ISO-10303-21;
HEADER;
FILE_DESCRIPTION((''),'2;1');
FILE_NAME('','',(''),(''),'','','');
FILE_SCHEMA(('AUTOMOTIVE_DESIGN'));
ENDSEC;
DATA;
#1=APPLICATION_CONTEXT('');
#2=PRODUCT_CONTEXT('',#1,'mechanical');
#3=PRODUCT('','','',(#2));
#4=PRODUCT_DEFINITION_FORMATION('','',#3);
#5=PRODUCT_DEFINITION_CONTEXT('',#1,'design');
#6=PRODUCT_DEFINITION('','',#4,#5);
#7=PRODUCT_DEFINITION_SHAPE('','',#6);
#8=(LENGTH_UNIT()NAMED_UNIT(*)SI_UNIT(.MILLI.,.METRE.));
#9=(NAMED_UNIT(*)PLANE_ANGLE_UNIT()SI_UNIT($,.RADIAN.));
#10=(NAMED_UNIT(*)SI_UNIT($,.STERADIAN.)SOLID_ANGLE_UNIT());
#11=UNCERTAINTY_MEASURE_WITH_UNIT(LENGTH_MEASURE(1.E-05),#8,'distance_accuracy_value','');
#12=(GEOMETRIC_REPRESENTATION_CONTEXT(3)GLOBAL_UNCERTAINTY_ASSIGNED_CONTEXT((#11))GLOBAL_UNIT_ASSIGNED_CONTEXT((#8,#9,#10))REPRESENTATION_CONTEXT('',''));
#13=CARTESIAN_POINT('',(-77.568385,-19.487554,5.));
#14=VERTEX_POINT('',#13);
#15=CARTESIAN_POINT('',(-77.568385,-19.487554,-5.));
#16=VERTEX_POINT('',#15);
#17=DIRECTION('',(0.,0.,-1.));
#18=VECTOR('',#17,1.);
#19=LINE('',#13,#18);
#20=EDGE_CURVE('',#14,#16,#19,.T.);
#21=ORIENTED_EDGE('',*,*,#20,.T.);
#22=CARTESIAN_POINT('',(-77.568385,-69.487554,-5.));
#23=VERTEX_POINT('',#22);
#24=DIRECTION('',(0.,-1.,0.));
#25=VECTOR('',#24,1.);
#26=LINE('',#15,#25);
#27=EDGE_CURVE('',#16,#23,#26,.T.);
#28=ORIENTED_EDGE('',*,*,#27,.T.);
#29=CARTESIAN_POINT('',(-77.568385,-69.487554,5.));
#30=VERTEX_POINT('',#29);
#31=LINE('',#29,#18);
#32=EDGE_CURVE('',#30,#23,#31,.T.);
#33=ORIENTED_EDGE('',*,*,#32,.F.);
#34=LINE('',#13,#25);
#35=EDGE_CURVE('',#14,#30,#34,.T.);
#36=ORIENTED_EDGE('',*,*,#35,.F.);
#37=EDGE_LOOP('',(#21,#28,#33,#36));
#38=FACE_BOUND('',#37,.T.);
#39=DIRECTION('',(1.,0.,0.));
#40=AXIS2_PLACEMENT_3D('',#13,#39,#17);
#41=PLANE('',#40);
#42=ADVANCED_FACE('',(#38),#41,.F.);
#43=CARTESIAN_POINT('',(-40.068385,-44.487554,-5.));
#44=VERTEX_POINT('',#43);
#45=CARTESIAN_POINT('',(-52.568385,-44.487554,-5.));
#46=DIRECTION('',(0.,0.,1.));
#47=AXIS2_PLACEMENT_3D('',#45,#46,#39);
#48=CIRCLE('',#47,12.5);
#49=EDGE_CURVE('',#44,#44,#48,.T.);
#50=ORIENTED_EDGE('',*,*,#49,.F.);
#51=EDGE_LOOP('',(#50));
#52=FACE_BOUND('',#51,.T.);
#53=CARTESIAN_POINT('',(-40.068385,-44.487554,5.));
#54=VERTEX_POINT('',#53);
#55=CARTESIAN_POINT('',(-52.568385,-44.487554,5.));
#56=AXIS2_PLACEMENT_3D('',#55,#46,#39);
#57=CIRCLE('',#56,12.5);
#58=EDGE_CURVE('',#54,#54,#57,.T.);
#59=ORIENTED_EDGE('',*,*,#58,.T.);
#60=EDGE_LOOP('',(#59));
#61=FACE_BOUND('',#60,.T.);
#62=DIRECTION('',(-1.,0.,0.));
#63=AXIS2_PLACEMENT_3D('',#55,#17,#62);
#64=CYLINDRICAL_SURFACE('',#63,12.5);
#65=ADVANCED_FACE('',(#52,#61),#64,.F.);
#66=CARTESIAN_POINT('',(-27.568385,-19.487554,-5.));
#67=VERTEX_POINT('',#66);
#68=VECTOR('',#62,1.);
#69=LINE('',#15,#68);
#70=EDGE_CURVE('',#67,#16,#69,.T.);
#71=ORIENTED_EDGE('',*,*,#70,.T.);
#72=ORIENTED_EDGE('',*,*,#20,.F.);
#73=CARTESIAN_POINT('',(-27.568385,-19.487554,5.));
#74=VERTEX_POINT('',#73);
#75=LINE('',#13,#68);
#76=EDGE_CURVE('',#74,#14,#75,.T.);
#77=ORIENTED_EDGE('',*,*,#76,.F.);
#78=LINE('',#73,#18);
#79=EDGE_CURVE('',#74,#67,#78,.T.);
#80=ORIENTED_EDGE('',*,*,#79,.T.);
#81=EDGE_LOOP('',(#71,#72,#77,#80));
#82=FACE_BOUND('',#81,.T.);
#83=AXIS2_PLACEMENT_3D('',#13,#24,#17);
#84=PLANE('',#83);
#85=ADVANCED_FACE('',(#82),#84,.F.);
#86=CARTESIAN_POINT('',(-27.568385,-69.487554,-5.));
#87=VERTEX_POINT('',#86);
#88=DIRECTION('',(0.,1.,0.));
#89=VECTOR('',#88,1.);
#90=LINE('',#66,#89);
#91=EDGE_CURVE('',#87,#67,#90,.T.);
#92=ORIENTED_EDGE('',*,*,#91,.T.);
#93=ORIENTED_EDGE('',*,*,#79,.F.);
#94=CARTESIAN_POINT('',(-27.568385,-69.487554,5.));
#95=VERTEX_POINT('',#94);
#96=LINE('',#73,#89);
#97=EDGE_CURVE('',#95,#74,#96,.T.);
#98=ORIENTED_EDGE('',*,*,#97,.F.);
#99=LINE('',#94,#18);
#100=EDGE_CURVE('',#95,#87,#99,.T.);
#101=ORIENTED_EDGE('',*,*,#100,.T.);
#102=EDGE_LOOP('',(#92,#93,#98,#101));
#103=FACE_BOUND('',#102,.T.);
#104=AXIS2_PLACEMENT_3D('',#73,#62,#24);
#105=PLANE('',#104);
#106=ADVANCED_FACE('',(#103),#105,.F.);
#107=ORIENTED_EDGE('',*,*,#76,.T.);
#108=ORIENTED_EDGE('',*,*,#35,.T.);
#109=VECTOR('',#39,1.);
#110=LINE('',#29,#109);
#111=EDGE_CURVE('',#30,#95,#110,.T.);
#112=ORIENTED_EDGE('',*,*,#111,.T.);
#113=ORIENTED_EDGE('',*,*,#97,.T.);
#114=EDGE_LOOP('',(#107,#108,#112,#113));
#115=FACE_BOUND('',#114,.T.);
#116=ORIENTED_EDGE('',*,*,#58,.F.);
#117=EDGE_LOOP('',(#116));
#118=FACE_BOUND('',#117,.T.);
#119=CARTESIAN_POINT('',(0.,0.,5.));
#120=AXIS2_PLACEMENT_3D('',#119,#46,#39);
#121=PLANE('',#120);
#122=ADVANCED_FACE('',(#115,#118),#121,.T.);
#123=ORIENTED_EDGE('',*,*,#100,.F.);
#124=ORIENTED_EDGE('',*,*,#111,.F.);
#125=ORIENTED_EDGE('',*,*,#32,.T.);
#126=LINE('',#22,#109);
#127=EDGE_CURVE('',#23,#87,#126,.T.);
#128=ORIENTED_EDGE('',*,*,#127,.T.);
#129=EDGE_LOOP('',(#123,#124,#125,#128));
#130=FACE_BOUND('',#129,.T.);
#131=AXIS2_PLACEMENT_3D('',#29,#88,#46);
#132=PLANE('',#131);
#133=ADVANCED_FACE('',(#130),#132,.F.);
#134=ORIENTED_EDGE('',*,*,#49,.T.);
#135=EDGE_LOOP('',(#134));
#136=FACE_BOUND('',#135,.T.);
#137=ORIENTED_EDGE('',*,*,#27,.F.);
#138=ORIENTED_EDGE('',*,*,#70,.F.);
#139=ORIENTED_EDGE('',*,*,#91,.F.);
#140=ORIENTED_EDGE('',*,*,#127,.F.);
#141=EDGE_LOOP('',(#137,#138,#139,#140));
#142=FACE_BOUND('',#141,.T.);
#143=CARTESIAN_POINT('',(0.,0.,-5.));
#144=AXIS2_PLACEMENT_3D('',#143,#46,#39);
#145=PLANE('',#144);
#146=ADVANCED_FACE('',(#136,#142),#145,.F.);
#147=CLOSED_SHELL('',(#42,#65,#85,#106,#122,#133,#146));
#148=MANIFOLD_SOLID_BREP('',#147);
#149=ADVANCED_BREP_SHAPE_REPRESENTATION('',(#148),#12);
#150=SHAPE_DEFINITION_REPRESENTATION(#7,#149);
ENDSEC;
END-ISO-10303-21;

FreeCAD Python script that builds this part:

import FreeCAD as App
import Part
import Sketcher
from FreeCAD import Vector
Q = App.Units.Quantity

doc = App.newDocument("Part")
params = doc.addObject("Spreadsheet::Sheet", "Params")
for row, (alias, value) in enumerate([
    ("sketch1_diameter", "25 mm"),
    ("sketch1_width", "50 mm"),
    ("pad1_length", "10 mm"),
], start=1):
    params.set(f"A{row}", alias)
    params.set(f"B{row}", "=" + value)
    params.setAlias(f"B{row}", alias)

body = doc.addObject("PartDesign::Body", "Body")

# Sketch on XY plane
sketch1 = body.newObject("Sketcher::SketchObject", "Sketch")
sketch1.AttachmentSupport = (doc.getObject("XY_Plane"), [""])
sketch1.MapMode = "FlatFace"
sketch1.addGeometry([
    Part.LineSegment(Vector(-77.568385, -19.487554, 0), Vector(-77.568385, -69.487554, 0)),  # 0
    Part.LineSegment(Vector(-77.568385, -69.487554, 0), Vector(-27.568385, -69.487554, 0)),  # 1
    Part.LineSegment(Vector(-27.568385, -69.487554, 0), Vector(-27.568385, -19.487554, 0)),  # 2
    Part.LineSegment(Vector(-27.568385, -19.487554, 0), Vector(-77.568385, -19.487554, 0)),  # 3
    Part.Circle(Vector(-52.568385, -44.487554, 0), Vector(0, 0, 1), 12.5),  # 4
], False)
sketch1.addConstraint([
    Sketcher.Constraint("Coincident", 0, 2, 1, 1),
    Sketcher.Constraint("Coincident", 1, 2, 2, 1),
    Sketcher.Constraint("Coincident", 2, 2, 3, 1),
    Sketcher.Constraint("Coincident", 3, 2, 0, 1),
    Sketcher.Constraint("Vertical", 0),
    Sketcher.Constraint("Horizontal", 1),
    Sketcher.Constraint("Vertical", 2),
    Sketcher.Constraint("Horizontal", 3),
    Sketcher.Constraint("Equal", 3, 0),
    Sketcher.Constraint("Diameter", 4, Q("25 mm")),
    Sketcher.Constraint("DistanceX", 1, 1, 1, 2, Q("50 mm")),
    Sketcher.Constraint("DistanceX", 0, 2, 4, 3, Q("25 mm")),
    Sketcher.Constraint("DistanceY", 0, 2, 4, 3, Q("25 mm")),
    Sketcher.Constraint("DistanceX", 4, 3, -1, 1, Q("52.568385 mm")),
    Sketcher.Constraint("DistanceY", 4, 3, -1, 1, Q("44.487554 mm")),
])
sketch1.setExpression("Constraints[9]", "Params.sketch1_diameter")
sketch1.setExpression("Constraints[10]", "Params.sketch1_width")
pad1 = body.newObject("PartDesign::Pad", "Pad")
pad1.Profile = sketch1
pad1.setExpression("Length", "Params.pad1_length")
pad1.Midplane = True

doc.recompute()
